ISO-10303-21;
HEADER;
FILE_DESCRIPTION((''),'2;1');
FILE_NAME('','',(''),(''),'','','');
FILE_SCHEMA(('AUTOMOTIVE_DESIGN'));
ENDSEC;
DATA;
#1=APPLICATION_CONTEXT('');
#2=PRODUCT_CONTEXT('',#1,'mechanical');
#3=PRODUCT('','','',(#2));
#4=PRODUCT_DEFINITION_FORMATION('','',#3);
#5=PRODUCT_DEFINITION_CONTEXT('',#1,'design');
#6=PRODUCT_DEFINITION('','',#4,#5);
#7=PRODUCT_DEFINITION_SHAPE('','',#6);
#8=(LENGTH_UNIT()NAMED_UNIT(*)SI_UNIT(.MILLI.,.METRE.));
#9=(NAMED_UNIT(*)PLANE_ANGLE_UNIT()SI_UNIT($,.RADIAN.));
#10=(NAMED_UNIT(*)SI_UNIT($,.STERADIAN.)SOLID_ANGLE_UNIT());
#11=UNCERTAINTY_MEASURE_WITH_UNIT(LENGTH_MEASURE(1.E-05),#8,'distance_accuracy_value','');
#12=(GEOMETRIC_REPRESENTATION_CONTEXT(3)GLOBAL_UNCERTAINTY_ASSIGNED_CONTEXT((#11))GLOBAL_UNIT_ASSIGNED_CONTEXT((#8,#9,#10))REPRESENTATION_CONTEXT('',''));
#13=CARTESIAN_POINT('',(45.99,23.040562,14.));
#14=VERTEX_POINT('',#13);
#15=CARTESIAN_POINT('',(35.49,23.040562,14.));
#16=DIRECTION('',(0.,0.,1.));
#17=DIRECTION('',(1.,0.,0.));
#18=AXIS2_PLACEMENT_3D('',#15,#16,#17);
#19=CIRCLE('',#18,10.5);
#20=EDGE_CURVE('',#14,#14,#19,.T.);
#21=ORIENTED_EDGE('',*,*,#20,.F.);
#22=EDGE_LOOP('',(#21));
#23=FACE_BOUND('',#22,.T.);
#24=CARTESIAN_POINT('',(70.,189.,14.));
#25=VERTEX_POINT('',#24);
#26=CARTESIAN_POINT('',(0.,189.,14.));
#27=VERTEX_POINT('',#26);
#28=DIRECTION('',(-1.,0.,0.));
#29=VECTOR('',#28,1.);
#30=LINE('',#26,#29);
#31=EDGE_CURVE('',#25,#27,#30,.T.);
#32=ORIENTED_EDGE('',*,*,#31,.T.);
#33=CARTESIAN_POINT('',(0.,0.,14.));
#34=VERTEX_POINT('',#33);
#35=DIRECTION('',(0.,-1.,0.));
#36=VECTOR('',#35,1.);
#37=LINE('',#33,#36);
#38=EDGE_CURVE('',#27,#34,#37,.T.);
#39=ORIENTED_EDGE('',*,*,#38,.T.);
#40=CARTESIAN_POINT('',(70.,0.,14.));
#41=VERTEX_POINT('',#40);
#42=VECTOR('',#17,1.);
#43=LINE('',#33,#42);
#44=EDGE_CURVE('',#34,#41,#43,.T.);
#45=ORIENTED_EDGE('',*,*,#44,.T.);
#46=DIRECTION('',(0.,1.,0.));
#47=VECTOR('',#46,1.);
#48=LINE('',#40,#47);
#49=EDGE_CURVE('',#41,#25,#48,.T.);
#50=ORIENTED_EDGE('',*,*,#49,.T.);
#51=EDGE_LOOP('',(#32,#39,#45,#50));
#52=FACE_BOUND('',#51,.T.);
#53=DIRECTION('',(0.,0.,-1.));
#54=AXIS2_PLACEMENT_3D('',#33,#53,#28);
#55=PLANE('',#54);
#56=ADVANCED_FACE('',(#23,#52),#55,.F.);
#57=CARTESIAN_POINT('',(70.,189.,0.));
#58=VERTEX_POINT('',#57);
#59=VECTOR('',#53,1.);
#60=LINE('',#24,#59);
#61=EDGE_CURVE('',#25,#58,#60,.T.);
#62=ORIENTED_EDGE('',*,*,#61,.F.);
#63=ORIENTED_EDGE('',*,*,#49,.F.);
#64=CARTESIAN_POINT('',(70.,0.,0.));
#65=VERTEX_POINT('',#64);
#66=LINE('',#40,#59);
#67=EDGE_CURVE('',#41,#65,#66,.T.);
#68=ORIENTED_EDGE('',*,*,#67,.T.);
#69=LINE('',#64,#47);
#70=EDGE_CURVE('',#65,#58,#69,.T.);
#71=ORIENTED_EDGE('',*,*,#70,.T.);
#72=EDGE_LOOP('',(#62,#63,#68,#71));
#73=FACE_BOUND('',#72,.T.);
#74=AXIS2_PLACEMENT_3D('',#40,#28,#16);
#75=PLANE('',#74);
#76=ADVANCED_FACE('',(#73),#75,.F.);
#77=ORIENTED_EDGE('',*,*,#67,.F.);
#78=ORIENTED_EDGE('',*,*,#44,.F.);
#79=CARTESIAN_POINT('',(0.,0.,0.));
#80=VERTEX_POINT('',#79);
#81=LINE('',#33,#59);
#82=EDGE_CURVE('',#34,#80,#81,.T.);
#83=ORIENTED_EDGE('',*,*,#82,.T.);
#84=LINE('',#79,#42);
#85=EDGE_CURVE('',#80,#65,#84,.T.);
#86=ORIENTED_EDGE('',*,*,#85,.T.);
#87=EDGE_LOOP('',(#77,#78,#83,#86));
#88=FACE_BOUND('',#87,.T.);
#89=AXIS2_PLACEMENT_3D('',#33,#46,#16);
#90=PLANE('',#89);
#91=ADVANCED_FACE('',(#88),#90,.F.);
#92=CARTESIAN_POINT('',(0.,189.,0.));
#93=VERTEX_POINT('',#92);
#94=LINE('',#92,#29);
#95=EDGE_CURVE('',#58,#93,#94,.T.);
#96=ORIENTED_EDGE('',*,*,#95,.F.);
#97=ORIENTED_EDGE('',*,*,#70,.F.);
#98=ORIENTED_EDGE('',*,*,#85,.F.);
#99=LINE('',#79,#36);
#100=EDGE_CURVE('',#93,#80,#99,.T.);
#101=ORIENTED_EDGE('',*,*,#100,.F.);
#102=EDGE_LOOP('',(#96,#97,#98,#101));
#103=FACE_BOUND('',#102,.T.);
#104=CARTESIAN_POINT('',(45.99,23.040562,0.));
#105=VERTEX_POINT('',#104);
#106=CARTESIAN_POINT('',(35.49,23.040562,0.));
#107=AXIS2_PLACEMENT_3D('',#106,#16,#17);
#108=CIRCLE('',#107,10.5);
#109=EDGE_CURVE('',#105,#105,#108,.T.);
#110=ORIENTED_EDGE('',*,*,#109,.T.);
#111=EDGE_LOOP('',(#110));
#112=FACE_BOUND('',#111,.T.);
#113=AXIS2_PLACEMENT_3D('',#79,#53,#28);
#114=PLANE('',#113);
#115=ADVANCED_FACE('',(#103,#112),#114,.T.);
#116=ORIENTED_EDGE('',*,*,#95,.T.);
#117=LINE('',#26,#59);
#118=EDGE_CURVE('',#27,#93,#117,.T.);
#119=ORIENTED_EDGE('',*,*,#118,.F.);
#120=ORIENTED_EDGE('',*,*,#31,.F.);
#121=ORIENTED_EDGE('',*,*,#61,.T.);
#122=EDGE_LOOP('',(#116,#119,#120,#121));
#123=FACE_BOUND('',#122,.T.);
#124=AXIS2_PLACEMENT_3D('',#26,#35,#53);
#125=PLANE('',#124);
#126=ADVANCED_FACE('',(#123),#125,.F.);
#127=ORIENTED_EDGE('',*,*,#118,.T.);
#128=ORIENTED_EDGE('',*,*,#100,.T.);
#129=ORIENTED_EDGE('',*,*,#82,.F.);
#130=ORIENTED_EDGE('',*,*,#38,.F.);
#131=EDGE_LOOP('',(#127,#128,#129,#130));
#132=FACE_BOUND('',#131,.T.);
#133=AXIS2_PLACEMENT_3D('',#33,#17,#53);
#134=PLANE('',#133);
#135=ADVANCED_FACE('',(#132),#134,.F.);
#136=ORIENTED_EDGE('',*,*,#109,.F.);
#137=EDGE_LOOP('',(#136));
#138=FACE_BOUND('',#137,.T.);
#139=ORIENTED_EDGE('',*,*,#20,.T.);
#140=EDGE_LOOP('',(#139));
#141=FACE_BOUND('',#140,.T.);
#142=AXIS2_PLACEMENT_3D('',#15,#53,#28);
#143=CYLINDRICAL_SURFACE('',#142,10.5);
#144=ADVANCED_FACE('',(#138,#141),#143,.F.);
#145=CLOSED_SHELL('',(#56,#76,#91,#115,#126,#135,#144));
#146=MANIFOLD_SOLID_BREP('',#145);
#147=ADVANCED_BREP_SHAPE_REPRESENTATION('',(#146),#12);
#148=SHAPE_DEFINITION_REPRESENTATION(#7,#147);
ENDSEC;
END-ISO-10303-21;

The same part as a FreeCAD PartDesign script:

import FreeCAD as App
import Part
import Sketcher
Q = App.Units.Quantity


def add_polygon(sketch, points):
    """Adds a closed chain of lines whose ends are joined by coincident constraints."""
    first, n = sketch.GeometryCount, len(points)
    for a, b in zip(points, points[1:] + points[:1]):
        sketch.addGeometry(Part.LineSegment(App.Vector(*a, 0), App.Vector(*b, 0)), False)
    for i in range(n):
        sketch.addConstraint(Sketcher.Constraint("Coincident", first + i, 2, first + (i + 1) % n, 1))

doc = App.newDocument("Part")
body = doc.addObject("PartDesign::Body", "Body")

sketch1 = body.newObject("Sketcher::SketchObject", "Sketch")
sketch1.AttachmentSupport = (doc.getObject("XY_Plane"), [""])
sketch1.MapMode = "FlatFace"
add_polygon(sketch1, [(0, 189), (0, 0), (70, 0), (70, 189)])
sketch1.addGeometry(Part.Circle(App.Vector(35, 23, 0), App.Vector(0, 0, 1), 10), False)
sketch1.addConstraint(Sketcher.Constraint("Vertical", 0))
sketch1.addConstraint(Sketcher.Constraint("Horizontal", 1))
sketch1.addConstraint(Sketcher.Constraint("Vertical", 2))
sketch1.addConstraint(Sketcher.Constraint("Horizontal", 3))
sketch1.addConstraint(Sketcher.Constraint("Coincident", 0, 2, -1, 1))
sketch1.addConstraint(Sketcher.Constraint("Diameter", 4, Q("21 mm")))
sketch1.addConstraint(Sketcher.Constraint("DistanceX", 1, 1, 1, 2, Q("70 mm")))
sketch1.addConstraint(Sketcher.Constraint("DistanceY", 0, 2, 0, 1, Q("189 mm")))
sketch1.addConstraint(Sketcher.Constraint("DistanceX", -1, 1, 4, 3, Q("35.49 mm")))
sketch1.addConstraint(Sketcher.Constraint("DistanceY", -1, 1, 4, 3, Q("23.040562 mm")))
pad1 = body.newObject("PartDesign::Pad", "Pad")
pad1.Profile = sketch1
pad1.Length = 14

doc.recompute()
